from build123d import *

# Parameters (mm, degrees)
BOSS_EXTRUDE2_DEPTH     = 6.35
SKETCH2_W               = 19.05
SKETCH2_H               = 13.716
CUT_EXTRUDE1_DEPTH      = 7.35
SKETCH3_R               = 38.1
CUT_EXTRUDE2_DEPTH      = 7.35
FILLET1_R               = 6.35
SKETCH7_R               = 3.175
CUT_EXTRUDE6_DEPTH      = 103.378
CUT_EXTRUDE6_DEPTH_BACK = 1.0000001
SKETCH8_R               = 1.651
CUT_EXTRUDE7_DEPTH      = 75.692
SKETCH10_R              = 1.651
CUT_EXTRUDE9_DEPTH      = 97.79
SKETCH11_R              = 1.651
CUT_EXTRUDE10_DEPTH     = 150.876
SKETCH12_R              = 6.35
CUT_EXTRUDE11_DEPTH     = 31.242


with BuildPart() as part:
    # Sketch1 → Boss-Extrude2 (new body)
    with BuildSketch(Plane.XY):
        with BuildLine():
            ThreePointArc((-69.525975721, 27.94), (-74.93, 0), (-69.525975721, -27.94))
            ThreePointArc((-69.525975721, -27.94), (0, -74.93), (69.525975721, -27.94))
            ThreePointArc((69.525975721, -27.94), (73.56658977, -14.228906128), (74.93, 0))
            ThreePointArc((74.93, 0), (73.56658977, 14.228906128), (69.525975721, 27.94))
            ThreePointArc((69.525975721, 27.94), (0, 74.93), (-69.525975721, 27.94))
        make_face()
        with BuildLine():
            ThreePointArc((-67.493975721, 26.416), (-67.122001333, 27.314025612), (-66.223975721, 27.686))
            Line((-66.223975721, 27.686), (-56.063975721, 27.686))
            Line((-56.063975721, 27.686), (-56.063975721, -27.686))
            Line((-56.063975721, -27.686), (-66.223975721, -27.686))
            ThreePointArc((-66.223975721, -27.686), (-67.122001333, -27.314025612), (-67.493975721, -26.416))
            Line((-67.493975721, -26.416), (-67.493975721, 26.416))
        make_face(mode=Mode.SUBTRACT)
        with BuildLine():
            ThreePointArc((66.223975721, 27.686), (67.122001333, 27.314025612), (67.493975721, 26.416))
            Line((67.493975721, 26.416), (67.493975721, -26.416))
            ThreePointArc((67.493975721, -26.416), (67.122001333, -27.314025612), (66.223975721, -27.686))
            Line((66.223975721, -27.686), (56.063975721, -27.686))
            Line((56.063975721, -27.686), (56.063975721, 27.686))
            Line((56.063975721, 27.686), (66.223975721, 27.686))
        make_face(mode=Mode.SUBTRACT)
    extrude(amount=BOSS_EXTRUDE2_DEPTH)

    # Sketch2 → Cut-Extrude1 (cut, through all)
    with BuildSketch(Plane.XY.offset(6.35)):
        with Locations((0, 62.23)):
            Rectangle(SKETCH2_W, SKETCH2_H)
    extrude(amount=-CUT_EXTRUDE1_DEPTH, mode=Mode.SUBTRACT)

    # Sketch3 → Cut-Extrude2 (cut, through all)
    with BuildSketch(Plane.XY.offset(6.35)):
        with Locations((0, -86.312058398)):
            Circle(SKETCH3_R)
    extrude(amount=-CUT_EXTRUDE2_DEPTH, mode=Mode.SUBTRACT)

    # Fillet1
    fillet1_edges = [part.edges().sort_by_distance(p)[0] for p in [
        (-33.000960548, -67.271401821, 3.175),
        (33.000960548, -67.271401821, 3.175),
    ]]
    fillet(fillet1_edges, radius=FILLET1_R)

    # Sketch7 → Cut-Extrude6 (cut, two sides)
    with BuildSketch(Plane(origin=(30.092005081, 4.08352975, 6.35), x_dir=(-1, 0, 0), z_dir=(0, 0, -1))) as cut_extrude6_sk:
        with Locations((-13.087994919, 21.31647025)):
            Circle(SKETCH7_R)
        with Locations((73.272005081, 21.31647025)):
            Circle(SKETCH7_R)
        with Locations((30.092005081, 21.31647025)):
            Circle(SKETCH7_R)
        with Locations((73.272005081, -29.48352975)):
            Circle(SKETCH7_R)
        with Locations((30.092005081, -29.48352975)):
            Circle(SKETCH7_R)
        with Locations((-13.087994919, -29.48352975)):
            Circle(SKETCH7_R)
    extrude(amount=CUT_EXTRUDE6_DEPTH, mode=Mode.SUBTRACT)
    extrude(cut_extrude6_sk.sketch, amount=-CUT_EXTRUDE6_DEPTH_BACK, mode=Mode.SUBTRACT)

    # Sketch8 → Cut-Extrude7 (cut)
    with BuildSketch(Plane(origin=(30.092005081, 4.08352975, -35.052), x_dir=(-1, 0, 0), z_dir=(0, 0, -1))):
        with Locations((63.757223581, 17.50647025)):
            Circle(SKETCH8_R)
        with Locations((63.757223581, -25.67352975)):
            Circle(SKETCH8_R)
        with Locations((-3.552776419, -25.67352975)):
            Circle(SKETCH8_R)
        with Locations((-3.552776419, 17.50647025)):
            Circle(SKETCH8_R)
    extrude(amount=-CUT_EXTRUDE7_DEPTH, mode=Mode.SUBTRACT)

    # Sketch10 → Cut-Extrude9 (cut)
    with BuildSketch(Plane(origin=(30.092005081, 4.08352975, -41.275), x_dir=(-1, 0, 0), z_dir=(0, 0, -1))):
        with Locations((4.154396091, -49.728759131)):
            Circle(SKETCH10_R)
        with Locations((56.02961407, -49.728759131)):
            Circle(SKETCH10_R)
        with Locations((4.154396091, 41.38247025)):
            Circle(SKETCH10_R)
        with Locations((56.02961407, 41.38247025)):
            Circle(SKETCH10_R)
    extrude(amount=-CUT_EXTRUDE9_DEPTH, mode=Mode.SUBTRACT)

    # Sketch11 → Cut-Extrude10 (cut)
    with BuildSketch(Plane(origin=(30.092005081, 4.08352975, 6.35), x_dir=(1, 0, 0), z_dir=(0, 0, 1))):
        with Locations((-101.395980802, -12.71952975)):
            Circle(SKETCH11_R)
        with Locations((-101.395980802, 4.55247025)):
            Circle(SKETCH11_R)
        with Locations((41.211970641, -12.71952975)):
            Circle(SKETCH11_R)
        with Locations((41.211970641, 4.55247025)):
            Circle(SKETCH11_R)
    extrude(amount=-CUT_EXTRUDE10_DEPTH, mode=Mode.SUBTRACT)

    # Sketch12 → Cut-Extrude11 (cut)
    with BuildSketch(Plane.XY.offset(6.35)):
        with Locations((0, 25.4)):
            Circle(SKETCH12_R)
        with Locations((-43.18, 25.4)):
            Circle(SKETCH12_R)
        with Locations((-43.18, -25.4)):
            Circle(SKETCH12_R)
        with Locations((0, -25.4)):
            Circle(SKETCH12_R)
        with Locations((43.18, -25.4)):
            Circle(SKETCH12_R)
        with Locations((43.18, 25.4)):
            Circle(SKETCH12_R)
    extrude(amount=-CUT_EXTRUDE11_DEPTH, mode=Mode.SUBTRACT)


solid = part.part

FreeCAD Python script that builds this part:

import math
import FreeCAD as App
import Part
import Sketcher

V = App.Vector
Q = App.Units.Quantity


def edges_at(feature, points):
    """Names of the edges that pass closest to the given points."""
    edges = feature.Shape.Edges
    near = lambda p: min(range(len(edges)), key=lambda i: edges[i].distToShape(Part.Vertex(*p))[0])
    return sorted({f"Edge{near(p) + 1}" for p in points})


def add_polygon(sketch, points):
    """Adds a closed chain of lines whose ends are joined by coincident constraints."""
    first, n = sketch.GeometryCount, len(points)
    for a, b in zip(points, points[1:] + points[:1]):
        sketch.addGeometry(Part.LineSegment(App.Vector(*a, 0), App.Vector(*b, 0)), False)
    for i in range(n):
        sketch.addConstraint(Sketcher.Constraint("Coincident", first + i, 2, first + (i + 1) % n, 1))

doc = App.newDocument("Part")
body = doc.addObject("PartDesign::Body", "Body")

sketch1 = doc.addObject("Sketcher::SketchObject", "Sketch")
body.addObject(sketch1)
sketch1.AttachmentSupport = (doc.XY_Plane, [""])
sketch1.MapMode = "FlatFace"
sketch1.addGeometry(Part.ArcOfCircle(Part.Circle(V(0, 0, 0), V(0, 0, 1), 74.93), math.radians(158.106572), math.radians(201.893428)), False)
sketch1.addGeometry(Part.ArcOfCircle(Part.Circle(V(0, 0, 0), V(0, 0, 1), 74.93), math.radians(-158.106572), math.radians(-21.893428)), False)
sketch1.addGeometry(Part.ArcOfCircle(Part.Circle(V(0, 0, 0), V(0, 0, 1), 74.93), math.radians(-21.893428), math.radians(0)), False)
sketch1.addGeometry(Part.ArcOfCircle(Part.Circle(V(0, 0, 0), V(0, 0, 1), 74.93), math.radians(0), math.radians(21.893428)), False)
sketch1.addGeometry(Part.ArcOfCircle(Part.Circle(V(0, 0, 0), V(0, 0, 1), 74.93), math.radians(21.893428), math.radians(158.106572)), False)
sketch1.addGeometry(Part.LineSegment(V(-67.493976, -26.416, 0), V(-67.493976, 26.416, 0)), False)
sketch1.addGeometry(Part.ArcOfCircle(Part.Circle(V(-66.223976, 26.416, 0), V(0, 0, 1), 1.27), math.radians(90), math.radians(180)), False)
sketch1.addGeometry(Part.LineSegment(V(-66.223976, 27.686, 0), V(-56.063976, 27.686, 0)), False)
sketch1.addGeometry(Part.LineSegment(V(-56.063976, 27.686, 0), V(-56.063976, -27.686, 0)), False)
sketch1.addGeometry(Part.LineSegment(V(-56.063976, -27.686, 0), V(-66.223976, -27.686, 0)), False)
sketch1.addGeometry(Part.ArcOfCircle(Part.Circle(V(-66.223976, -26.416, 0), V(0, 0, 1), 1.27), math.radians(180), math.radians(270)), False)
sketch1.addGeometry(Part.LineSegment(V(56.063976, 27.686, 0), V(66.223976, 27.686, 0)), False)
sketch1.addGeometry(Part.ArcOfCircle(Part.Circle(V(66.223976, 26.416, 0), V(0, 0, 1), 1.27), math.radians(0), math.radians(90)), False)
sketch1.addGeometry(Part.LineSegment(V(67.493976, 26.416, 0), V(67.493976, -26.416, 0)), False)
sketch1.addGeometry(Part.ArcOfCircle(Part.Circle(V(66.223976, -26.416, 0), V(0, 0, 1), 1.27), math.radians(-90), math.radians(0)), False)
sketch1.addGeometry(Part.LineSegment(V(66.223976, -27.686, 0), V(56.063976, -27.686, 0)), False)
sketch1.addGeometry(Part.LineSegment(V(56.063976, -27.686, 0), V(56.063976, 27.686, 0)), False)
sketch1.addConstraint(Sketcher.Constraint("Tangent", 0, 2, 1, 1))
sketch1.addConstraint(Sketcher.Constraint("Tangent", 1, 2, 2, 1))
sketch1.addConstraint(Sketcher.Constraint("Tangent", 2, 2, 3, 1))
sketch1.addConstraint(Sketcher.Constraint("Tangent", 3, 2, 4, 1))
sketch1.addConstraint(Sketcher.Constraint("Tangent", 4, 2, 0, 1))
sketch1.addConstraint(Sketcher.Constraint("Tangent", 5, 2, 6, 2))
sketch1.addConstraint(Sketcher.Constraint("Tangent", 6, 1, 7, 1))
sketch1.addConstraint(Sketcher.Constraint("Coincident", 7, 2, 8, 1))
sketch1.addConstraint(Sketcher.Constraint("Coincident", 8, 2, 9, 1))
sketch1.addConstraint(Sketcher.Constraint("Tangent", 9, 2, 10, 2))
sketch1.addConstraint(Sketcher.Constraint("Tangent", 10, 1, 5, 1))
sketch1.addConstraint(Sketcher.Constraint("Tangent", 11, 2, 12, 2))
sketch1.addConstraint(Sketcher.Constraint("Tangent", 12, 1, 13, 1))
sketch1.addConstraint(Sketcher.Constraint("Tangent", 13, 2, 14, 2))
sketch1.addConstraint(Sketcher.Constraint("Tangent", 14, 1, 15, 1))
sketch1.addConstraint(Sketcher.Constraint("Coincident", 15, 2, 16, 1))
sketch1.addConstraint(Sketcher.Constraint("Coincident", 16, 2, 11, 1))
sketch1.addConstraint(Sketcher.Constraint("Vertical", 5))
sketch1.addConstraint(Sketcher.Constraint("Horizontal", 7))
sketch1.addConstraint(Sketcher.Constraint("Vertical", 8))
sketch1.addConstraint(Sketcher.Constraint("Horizontal", 9))
sketch1.addConstraint(Sketcher.Constraint("Horizontal", 11))
sketch1.addConstraint(Sketcher.Constraint("Vertical", 13))
sketch1.addConstraint(Sketcher.Constraint("Horizontal", 15))
sketch1.addConstraint(Sketcher.Constraint("Vertical", 16))
sketch1.addConstraint(Sketcher.Constraint("Coincident", 0, 3, -1, 1))
sketch1.addConstraint(Sketcher.Constraint("Coincident", 2, 3, -1, 1))
sketch1.addConstraint(Sketcher.Constraint("Equal", 6, 10))
sketch1.addConstraint(Sketcher.Constraint("Equal", 10, 12))
sketch1.addConstraint(Sketcher.Constraint("Equal", 12, 14))
sketch1.addConstraint(Sketcher.Constraint("Symmetric", 10, 3, 12, 3, -1, 1))
sketch1.addConstraint(Sketcher.Constraint("Symmetric", 7, 2, 15, 2, -1, 1))
sketch1.addConstraint(Sketcher.Constraint("PointOnObject", 2, 2, -1))
sketch1.addConstraint(Sketcher.Constraint("Horizontal", 6, 3, 12, 3))
sketch1.addConstraint(Sketcher.Constraint("Horizontal", 0, 2, 1, 2))
sketch1.addConstraint(Sketcher.Constraint("Horizontal", 3, 2, 4, 2))
sketch1.addConstraint(Sketcher.Constraint("Vertical", 1, 2, 3, 2))
sketch1.addConstraint(Sketcher.Constraint("Radius", 0, Q("2.95 in")))
sketch1.addConstraint(Sketcher.Constraint("Radius", 6, Q("0.05 in")))
sketch1.addConstraint(Sketcher.Constraint("DistanceX", 7, 1, 7, 2, Q("0.4 in")))
sketch1.addConstraint(Sketcher.Constraint("DistanceY", 5, 1, 5, 2, Q("2.08 in")))
sketch1.addConstraint(Sketcher.Constraint("DistanceY", 0, 2, -1, 1, Q("1.1 in")))
sketch1.addConstraint(Sketcher.Constraint("DistanceX", 0, 2, 10, 3, Q("0.13 in")))
pad1 = doc.addObject("PartDesign::Pad", "Pad")
body.addObject(pad1)
pad1.Profile = sketch1
pad1.Length = Q("0.25 in")

sketch2 = doc.addObject("Sketcher::SketchObject", "Sketch001")
body.addObject(sketch2)
sketch2.AttachmentSupport = (doc.XY_Plane, [""])
sketch2.MapMode = "FlatFace"
sketch2.AttachmentOffset = App.Placement(V(0, 0, 0.25 * 25.4), App.Rotation())
add_polygon(sketch2, [(-9.525, 69.088), (-9.525, 55.372), (9.525, 55.372), (9.525, 69.088)])
sketch2.addConstraint(Sketcher.Constraint("Vertical", 0))
sketch2.addConstraint(Sketcher.Constraint("Horizontal", 1))
sketch2.addConstraint(Sketcher.Constraint("Vertical", 2))
sketch2.addConstraint(Sketcher.Constraint("Horizontal", 3))
sketch2.addConstraint(Sketcher.Constraint("DistanceX", 1, 1, 1, 2, Q("0.75 in")))
sketch2.addConstraint(Sketcher.Constraint("DistanceY", 0, 2, 0, 1, Q("0.54 in")))
sketch2.addConstraint(Sketcher.Constraint("DistanceY", -1, 1, 0, 2, Q("2.18 in")))
sketch2.addConstraint(Sketcher.Constraint("DistanceX", 0, 2, -1, 1, Q("0.375 in")))
pocket1 = doc.addObject("PartDesign::Pocket", "Pocket")
body.addObject(pocket1)
pocket1.Profile = sketch2
pocket1.Type = "ThroughAll"

sketch3 = doc.addObject("Sketcher::SketchObject", "Sketch002")
body.addObject(sketch3)
sketch3.AttachmentSupport = (doc.XY_Plane, [""])
sketch3.MapMode = "FlatFace"
sketch3.AttachmentOffset = App.Placement(V(0, 0, 0.25 * 25.4), App.Rotation())
sketch3.addGeometry(Part.Circle(V(0, -86.312058, 0), V(0, 0, 1), 38.1), False)
sketch3.addConstraint(Sketcher.Constraint("PointOnObject", 0, 3, -2))
sketch3.addConstraint(Sketcher.Constraint("Diameter", 0, Q("3 in")))
sketch3.addConstraint(Sketcher.Constraint("DistanceY", 0, 3, -1, 1, Q("86.312058 mm")))
pocket2 = doc.addObject("PartDesign::Pocket", "Pocket001")
body.addObject(pocket2)
pocket2.Profile = sketch3
pocket2.Type = "ThroughAll"
doc.recompute()

fillet = doc.addObject("PartDesign::Fillet", "Fillet")
body.addObject(fillet)
fillet.Base = (pocket2, edges_at(pocket2, [(-33.001, -67.271, 3.175), (33.001, -67.271, 3.175)]))
fillet.Radius = Q("0.25 in")

sketch4 = doc.addObject("Sketcher::SketchObject", "Sketch003")
body.addObject(sketch4)
sketch4.AttachmentSupport = (doc.XY_Plane, [""])
sketch4.MapMode = "FlatFace"
sketch4.AttachmentOffset = App.Placement(V(0, 0, 0.25 * 25.4), App.Rotation())
sketch4.addGeometry(Part.Circle(V(43.18, 25.4, 0), V(0, 0, 1), 3.175), False)
sketch4.addGeometry(Part.Circle(V(-43.18, 25.4, 0), V(0, 0, 1), 3.175), False)
sketch4.addGeometry(Part.Circle(V(0, 25.4, 0), V(0, 0, 1), 3.175), False)
sketch4.addGeometry(Part.Circle(V(-43.18, -25.4, 0), V(0, 0, 1), 3.175), False)
sketch4.addGeometry(Part.Circle(V(0, -25.4, 0), V(0, 0, 1), 3.175), False)
sketch4.addGeometry(Part.Circle(V(43.18, -25.4, 0), V(0, 0, 1), 3.175), False)
sketch4.addConstraint(Sketcher.Constraint("Equal", 0, 1))
sketch4.addConstraint(Sketcher.Constraint("Equal", 1, 2))
sketch4.addConstraint(Sketcher.Constraint("Equal", 2, 3))
sketch4.addConstraint(Sketcher.Constraint("Equal", 3, 4))
sketch4.addConstraint(Sketcher.Constraint("Equal", 4, 5))
sketch4.addConstraint(Sketcher.Constraint("Symmetric", 0, 3, 3, 3, -1, 1))
sketch4.addConstraint(Sketcher.Constraint("Symmetric", 2, 3, 4, 3, -1, 1))
sketch4.addConstraint(Sketcher.Constraint("Symmetric", 1, 3, 5, 3, -1, 1))
sketch4.addConstraint(Sketcher.Constraint("Symmetric", 0, 3, 1, 3, -2))
sketch4.addConstraint(Sketcher.Constraint("PointOnObject", 2, 3, -2))
sketch4.addConstraint(Sketcher.Constraint("Horizontal", 1, 3, 2, 3))
sketch4.addConstraint(Sketcher.Constraint("Diameter", 0, Q("0.25 in")))
sketch4.addConstraint(Sketcher.Constraint("DistanceY", -1, 1, 0, 3, Q("1 in")))
sketch4.addConstraint(Sketcher.Constraint("DistanceX", -1, 1, 0, 3, Q("1.7 in")))
pocket3 = doc.addObject("PartDesign::Pocket", "Pocket002")
body.addObject(pocket3)
pocket3.Profile = sketch4
pocket3.Type = "ThroughAll"
pocket3.Midplane = True

sketch5 = doc.addObject("Sketcher::SketchObject", "Sketch004")
body.addObject(sketch5)
sketch5.AttachmentSupport = (doc.XY_Plane, [""])
sketch5.MapMode = "FlatFace"
sketch5.AttachmentOffset = App.Placement(V(0, 0, -1.38 * 25.4), App.Rotation())
sketch5.addGeometry(Part.Circle(V(-33.665219, 21.59, 0), V(0, 0, 1), 1.651), False)
sketch5.addGeometry(Part.Circle(V(-33.665219, -21.59, 0), V(0, 0, 1), 1.651), False)
sketch5.addGeometry(Part.Circle(V(33.644782, -21.59, 0), V(0, 0, 1), 1.651), False)
sketch5.addGeometry(Part.Circle(V(33.644782, 21.59, 0), V(0, 0, 1), 1.651), False)
sketch5.addConstraint(Sketcher.Constraint("Equal", 0, 1))
sketch5.addConstraint(Sketcher.Constraint("Equal", 1, 2))
sketch5.addConstraint(Sketcher.Constraint("Equal", 2, 3))
sketch5.addConstraint(Sketcher.Constraint("Symmetric", 0, 3, 1, 3, -1))
sketch5.addConstraint(Sketcher.Constraint("Symmetric", 2, 3, 3, 3, -1))
sketch5.addConstraint(Sketcher.Constraint("Horizontal", 1, 3, 2, 3))
sketch5.addConstraint(Sketcher.Constraint("Diameter", 0, Q("0.13 in")))
sketch5.addConstraint(Sketcher.Constraint("DistanceY", 1, 3, 0, 3, Q("1.7 in")))
sketch5.addConstraint(Sketcher.Constraint("DistanceX", 1, 3, 2, 3, Q("2.65 in")))
sketch5.addConstraint(Sketcher.Constraint("DistanceX", 0, 3, -1, 1, Q("33.665219 mm")))
pocket4 = doc.addObject("PartDesign::Pocket", "Pocket003")
body.addObject(pocket4)
pocket4.Profile = sketch5
pocket4.Length = Q("2.98 in")
pocket4.Reversed = True

sketch6 = doc.addObject("Sketcher::SketchObject", "Sketch005")
body.addObject(sketch6)
sketch6.AttachmentSupport = (doc.XY_Plane, [""])
sketch6.MapMode = "FlatFace"
sketch6.AttachmentOffset = App.Placement(V(0, 0, -1.625 * 25.4), App.Rotation())
sketch6.addGeometry(Part.Circle(V(25.937609, -45.645229, 0), V(0, 0, 1), 1.651), False)
sketch6.addGeometry(Part.Circle(V(-25.937609, -45.645229, 0), V(0, 0, 1), 1.651), False)
sketch6.addGeometry(Part.Circle(V(25.937609, 45.466, 0), V(0, 0, 1), 1.651), False)
sketch6.addGeometry(Part.Circle(V(-25.937609, 45.466, 0), V(0, 0, 1), 1.651), False)
sketch6.addConstraint(Sketcher.Constraint("Equal", 0, 1))
sketch6.addConstraint(Sketcher.Constraint("Equal", 1, 2))
sketch6.addConstraint(Sketcher.Constraint("Equal", 2, 3))
sketch6.addConstraint(Sketcher.Constraint("Symmetric", 0, 3, 1, 3, -2))
sketch6.addConstraint(Sketcher.Constraint("Symmetric", 2, 3, 3, 3, -2))
sketch6.addConstraint(Sketcher.Constraint("Vertical", 0, 3, 2, 3))
sketch6.addConstraint(Sketcher.Constraint("Diameter", 0, Q("0.13 in")))
sketch6.addConstraint(Sketcher.Constraint("DistanceY", -1, 1, 2, 3, Q("1.79 in")))
sketch6.addConstraint(Sketcher.Constraint("DistanceX", -1, 1, 0, 3, Q("25.937609 mm")))
sketch6.addConstraint(Sketcher.Constraint("DistanceY", 0, 3, -1, 1, Q("45.645229 mm")))
pocket5 = doc.addObject("PartDesign::Pocket", "Pocket004")
body.addObject(pocket5)
pocket5.Profile = sketch6
pocket5.Length = Q("3.85 in")
pocket5.Reversed = True

sketch7 = doc.addObject("Sketcher::SketchObject", "Sketch006")
body.addObject(sketch7)
sketch7.AttachmentSupport = (doc.XY_Plane, [""])
sketch7.MapMode = "FlatFace"
sketch7.AttachmentOffset = App.Placement(V(0, 0, 0.25 * 25.4), App.Rotation())
sketch7.addGeometry(Part.Circle(V(-71.303976, -8.636, 0), V(0, 0, 1), 1.651), False)
sketch7.addGeometry(Part.Circle(V(-71.303976, 8.636, 0), V(0, 0, 1), 1.651), False)
sketch7.addGeometry(Part.Circle(V(71.303976, -8.636, 0), V(0, 0, 1), 1.651), False)
sketch7.addGeometry(Part.Circle(V(71.303976, 8.636, 0), V(0, 0, 1), 1.651), False)
sketch7.addConstraint(Sketcher.Constraint("Equal", 0, 1))
sketch7.addConstraint(Sketcher.Constraint("Equal", 1, 2))
sketch7.addConstraint(Sketcher.Constraint("Equal", 2, 3))
sketch7.addConstraint(Sketcher.Constraint("Symmetric", 1, 3, 2, 3, -1, 1))
sketch7.addConstraint(Sketcher.Constraint("Symmetric", 0, 3, 3, 3, -1, 1))
sketch7.addConstraint(Sketcher.Constraint("Symmetric", 0, 3, 2, 3, -2))
sketch7.addConstraint(Sketcher.Constraint("Diameter", 0, Q("0.13 in")))
sketch7.addConstraint(Sketcher.Constraint("DistanceY", 0, 3, -1, 1, Q("0.34 in")))
sketch7.addConstraint(Sketcher.Constraint("DistanceX", 0, 3, 2, 3, Q("142.607951 mm")))
pocket6 = doc.addObject("PartDesign::Pocket", "Pocket005")
body.addObject(pocket6)
pocket6.Profile = sketch7
pocket6.Length = Q("5.94 in")

sketch8 = doc.addObject("Sketcher::SketchObject", "Sketch007")
body.addObject(sketch8)
sketch8.AttachmentSupport = (doc.XY_Plane, [""])
sketch8.MapMode = "FlatFace"
sketch8.AttachmentOffset = App.Placement(V(0, 0, 0.25 * 25.4), App.Rotation())
sketch8.addGeometry(Part.Circle(V(0, 25.4, 0), V(0, 0, 1), 6.35), False)
sketch8.addGeometry(Part.Circle(V(-43.18, 25.4, 0), V(0, 0, 1), 6.35), False)
sketch8.addGeometry(Part.Circle(V(-43.18, -25.4, 0), V(0, 0, 1), 6.35), False)
sketch8.addGeometry(Part.Circle(V(0, -25.4, 0), V(0, 0, 1), 6.35), False)
sketch8.addGeometry(Part.Circle(V(43.18, -25.4, 0), V(0, 0, 1), 6.35), False)
sketch8.addGeometry(Part.Circle(V(43.18, 25.4, 0), V(0, 0, 1), 6.35), False)
sketch8.addConstraint(Sketcher.Constraint("Equal", 0, 1))
sketch8.addConstraint(Sketcher.Constraint("Equal", 1, 2))
sketch8.addConstraint(Sketcher.Constraint("Equal", 2, 3))
sketch8.addConstraint(Sketcher.Constraint("Equal", 3, 4))
sketch8.addConstraint(Sketcher.Constraint("Equal", 4, 5))
sketch8.addConstraint(Sketcher.Constraint("Symmetric", 0, 3, 3, 3, -1, 1))
sketch8.addConstraint(Sketcher.Constraint("Symmetric", 1, 3, 4, 3, -1, 1))
sketch8.addConstraint(Sketcher.Constraint("Symmetric", 2, 3, 5, 3, -1, 1))
sketch8.addConstraint(Sketcher.Constraint("Symmetric", 2, 3, 4, 3, -2))
sketch8.addConstraint(Sketcher.Constraint("PointOnObject", 0, 3, -2))
sketch8.addConstraint(Sketcher.Constraint("Horizontal", 0, 3, 1, 3))
sketch8.addConstraint(Sketcher.Constraint("Diameter", 0, Q("0.5 in")))
sketch8.addConstraint(Sketcher.Constraint("DistanceY", -1, 1, 0, 3, Q("1 in")))
sketch8.addConstraint(Sketcher.Constraint("DistanceX", 1, 3, -1, 1, Q("1.7 in")))
pocket7 = doc.addObject("PartDesign::Pocket", "Pocket006")
body.addObject(pocket7)
pocket7.Profile = sketch8
pocket7.Length = Q("1.23 in")

doc.recompute()
